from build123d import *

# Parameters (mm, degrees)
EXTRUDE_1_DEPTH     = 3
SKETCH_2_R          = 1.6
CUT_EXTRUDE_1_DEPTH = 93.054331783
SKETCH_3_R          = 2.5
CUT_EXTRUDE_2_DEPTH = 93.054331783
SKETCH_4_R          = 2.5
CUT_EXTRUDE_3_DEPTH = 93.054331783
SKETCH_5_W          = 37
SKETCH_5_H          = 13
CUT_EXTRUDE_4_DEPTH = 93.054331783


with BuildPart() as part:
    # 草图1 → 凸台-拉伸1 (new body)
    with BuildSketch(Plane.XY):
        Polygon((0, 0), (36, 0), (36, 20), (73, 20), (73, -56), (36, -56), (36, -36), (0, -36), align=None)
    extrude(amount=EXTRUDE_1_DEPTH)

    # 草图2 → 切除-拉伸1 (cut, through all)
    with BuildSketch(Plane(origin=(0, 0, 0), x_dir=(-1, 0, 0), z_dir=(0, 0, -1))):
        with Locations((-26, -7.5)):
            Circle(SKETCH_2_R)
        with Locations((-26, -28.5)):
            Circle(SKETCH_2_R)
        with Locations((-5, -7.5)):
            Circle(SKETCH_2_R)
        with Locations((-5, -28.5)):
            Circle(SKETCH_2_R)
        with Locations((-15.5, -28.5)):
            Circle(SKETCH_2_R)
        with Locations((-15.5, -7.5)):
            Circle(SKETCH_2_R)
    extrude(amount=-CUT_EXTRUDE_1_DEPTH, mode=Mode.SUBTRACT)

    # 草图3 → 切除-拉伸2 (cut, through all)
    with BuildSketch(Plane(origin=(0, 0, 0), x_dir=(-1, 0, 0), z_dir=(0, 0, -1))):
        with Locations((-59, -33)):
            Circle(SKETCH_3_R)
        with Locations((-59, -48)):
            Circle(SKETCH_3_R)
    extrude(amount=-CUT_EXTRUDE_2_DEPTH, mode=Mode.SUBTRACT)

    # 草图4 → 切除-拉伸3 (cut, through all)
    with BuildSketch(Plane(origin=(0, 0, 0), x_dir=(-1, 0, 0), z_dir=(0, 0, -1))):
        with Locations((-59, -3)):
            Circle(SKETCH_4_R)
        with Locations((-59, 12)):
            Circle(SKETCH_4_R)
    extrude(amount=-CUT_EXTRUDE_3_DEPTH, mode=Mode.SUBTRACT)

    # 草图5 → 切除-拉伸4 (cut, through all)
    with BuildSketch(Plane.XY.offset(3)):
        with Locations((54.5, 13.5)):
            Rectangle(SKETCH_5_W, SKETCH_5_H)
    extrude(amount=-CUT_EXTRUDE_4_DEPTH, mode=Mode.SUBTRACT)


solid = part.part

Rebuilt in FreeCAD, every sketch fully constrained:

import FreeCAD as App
import Part
import Sketcher

V = App.Vector
Q = App.Units.Quantity

doc = App.newDocument("Part")
params = doc.addObject("Spreadsheet::Sheet", "Params")
for row, (alias, value) in enumerate([
    ("sketch1_width", "36 mm"),
    ("sketch1_width2", "37 mm"),
    ("sketch1_height", "20 mm"),
    ("pad1_length", "3 mm"),
    ("sketch2_diameter", "3.2 mm"),
    ("sketch3_diameter", "5 mm"),
    ("sketch4_diameter", "5 mm"),
    ("sketch5_width", "37 mm"),
    ("sketch5_height", "13 mm"),
], start=1):
    params.set(f"A{row}", alias)
    params.set(f"B{row}", "=" + value)
    params.setAlias(f"B{row}", alias)

body = doc.addObject("PartDesign::Body", "Body")

sketch1 = body.newObject("Sketcher::SketchObject", "Sketch")
sketch1.AttachmentSupport = (doc.getObject("XY_Plane"), [""])
sketch1.MapMode = "FlatFace"
sketch1.addGeometry([
    Part.LineSegment(V(36, 0, 0), V(0, 0, 0)),
    Part.LineSegment(V(0, 0, 0), V(0, -36, 0)),
    Part.LineSegment(V(0, -36, 0), V(36, -36, 0)),
    Part.LineSegment(V(36, -36, 0), V(36, -56, 0)),
    Part.LineSegment(V(36, -56, 0), V(73, -56, 0)),
    Part.LineSegment(V(73, -56, 0), V(73, 20, 0)),
    Part.LineSegment(V(73, 20, 0), V(36, 20, 0)),
    Part.LineSegment(V(36, 20, 0), V(36, 0, 0)),
], False)
sketch1.addConstraint([
    Sketcher.Constraint("Coincident", 0, 2, 1, 1),
    Sketcher.Constraint("Coincident", 1, 2, 2, 1),
    Sketcher.Constraint("Coincident", 2, 2, 3, 1),
    Sketcher.Constraint("Coincident", 3, 2, 4, 1),
    Sketcher.Constraint("Coincident", 4, 2, 5, 1),
    Sketcher.Constraint("Coincident", 5, 2, 6, 1),
    Sketcher.Constraint("Coincident", 6, 2, 7, 1),
    Sketcher.Constraint("Coincident", 7, 2, 0, 1),
    Sketcher.Constraint("Horizontal", 0),
    Sketcher.Constraint("Vertical", 1),
    Sketcher.Constraint("Horizontal", 2),
    Sketcher.Constraint("Vertical", 3),
    Sketcher.Constraint("Horizontal", 4),
    Sketcher.Constraint("Vertical", 5),
    Sketcher.Constraint("Horizontal", 6),
    Sketcher.Constraint("Vertical", 7),
    Sketcher.Constraint("Coincident", 0, 2, -1, 1),
    Sketcher.Constraint("Vertical", 3, 2, 6, 2),
    Sketcher.Constraint("Equal", 2, 1),
    Sketcher.Constraint("Equal", 3, 7),
    Sketcher.Constraint("DistanceX", 0, 2, 0, 1, Q("36 mm")),
    Sketcher.Constraint("DistanceX", 4, 1, 4, 2, Q("37 mm")),
    Sketcher.Constraint("DistanceY", 3, 2, 3, 1, Q("20 mm")),
])
sketch1.setExpression("Constraints[20]", "Params.sketch1_width")
sketch1.setExpression("Constraints[21]", "Params.sketch1_width2")
sketch1.setExpression("Constraints[22]", "Params.sketch1_height")
pad1 = body.newObject("PartDesign::Pad", "Pad")
pad1.Profile = sketch1
pad1.setExpression("Length", "Params.pad1_length")

sketch2 = body.newObject("Sketcher::SketchObject", "Sketch001")
sketch2.AttachmentSupport = (doc.getObject("XY_Plane"), [""])
sketch2.MapMode = "FlatFace"
sketch2.addGeometry([
    Part.Circle(V(26, -7.5, 0), V(0, 0, 1), 1.6),
    Part.Circle(V(26, -28.5, 0), V(0, 0, 1), 1.6),
    Part.Circle(V(5, -7.5, 0), V(0, 0, 1), 1.6),
    Part.Circle(V(5, -28.5, 0), V(0, 0, 1), 1.6),
    Part.Circle(V(15.5, -28.5, 0), V(0, 0, 1), 1.6),
    Part.Circle(V(15.5, -7.5, 0), V(0, 0, 1), 1.6),
], False)
sketch2.addConstraint([
    Sketcher.Constraint("Equal", 0, 1),
    Sketcher.Constraint("Equal", 1, 2),
    Sketcher.Constraint("Equal", 2, 3),
    Sketcher.Constraint("Equal", 3, 4),
    Sketcher.Constraint("Equal", 4, 5),
    Sketcher.Constraint("Horizontal", 0, 3, 2, 3),
    Sketcher.Constraint("Horizontal", 1, 3, 3, 3),
    Sketcher.Constraint("Horizontal", 3, 3, 4, 3),
    Sketcher.Constraint("Horizontal", 2, 3, 5, 3),
    Sketcher.Constraint("Vertical", 0, 3, 1, 3),
    Sketcher.Constraint("Vertical", 2, 3, 3, 3),
    Sketcher.Constraint("Vertical", 4, 3, 5, 3),
    Sketcher.Constraint("Diameter", 0, Q("3.2 mm")),
    Sketcher.Constraint("DistanceX", -1, 1, 0, 3, Q("26 mm")),
    Sketcher.Constraint("DistanceX", -1, 1, 2, 3, Q("5 mm")),
    Sketcher.Constraint("DistanceY", 1, 3, 0, 3, Q("21 mm")),
    Sketcher.Constraint("DistanceY", 0, 3, -1, 1, Q("7.5 mm")),
    Sketcher.Constraint("DistanceX", -1, 1, 4, 3, Q("15.5 mm")),
])
sketch2.setExpression("Constraints[12]", "Params.sketch2_diameter")
pocket1 = body.newObject("PartDesign::Pocket", "Pocket")
pocket1.Profile = sketch2
pocket1.Type = "ThroughAll"
pocket1.Reversed = True

sketch3 = body.newObject("Sketcher::SketchObject", "Sketch002")
sketch3.AttachmentSupport = (doc.getObject("XY_Plane"), [""])
sketch3.MapMode = "FlatFace"
sketch3.addGeometry([
    Part.Circle(V(59, -33, 0), V(0, 0, 1), 2.5),
    Part.Circle(V(59, -48, 0), V(0, 0, 1), 2.5),
], False)
sketch3.addConstraint([
    Sketcher.Constraint("Equal", 0, 1),
    Sketcher.Constraint("Vertical", 0, 3, 1, 3),
    Sketcher.Constraint("Diameter", 0, Q("5 mm")),
    Sketcher.Constraint("DistanceX", -1, 1, 0, 3, Q("59 mm")),
    Sketcher.Constraint("DistanceY", 0, 3, -1, 1, Q("33 mm")),
    Sketcher.Constraint("DistanceY", 1, 3, -1, 1, Q("48 mm")),
])
sketch3.setExpression("Constraints[2]", "Params.sketch3_diameter")
pocket2 = body.newObject("PartDesign::Pocket", "Pocket001")
pocket2.Profile = sketch3
pocket2.Type = "ThroughAll"
pocket2.Reversed = True

sketch4 = body.newObject("Sketcher::SketchObject", "Sketch003")
sketch4.AttachmentSupport = (doc.getObject("XY_Plane"), [""])
sketch4.MapMode = "FlatFace"
sketch4.addGeometry([
    Part.Circle(V(59, -3, 0), V(0, 0, 1), 2.5),
    Part.Circle(V(59, 12, 0), V(0, 0, 1), 2.5),
], False)
sketch4.addConstraint([
    Sketcher.Constraint("Equal", 0, 1),
    Sketcher.Constraint("Vertical", 0, 3, 1, 3),
    Sketcher.Constraint("Diameter", 0, Q("5 mm")),
    Sketcher.Constraint("DistanceX", -1, 1, 0, 3, Q("59 mm")),
    Sketcher.Constraint("DistanceY", 0, 3, -1, 1, Q("3 mm")),
    Sketcher.Constraint("DistanceY", -1, 1, 1, 3, Q("12 mm")),
])
sketch4.setExpression("Constraints[2]", "Params.sketch4_diameter")
pocket3 = body.newObject("PartDesign::Pocket", "Pocket002")
pocket3.Profile = sketch4
pocket3.Type = "ThroughAll"
pocket3.Reversed = True

sketch5 = body.newObject("Sketcher::SketchObject", "Sketch004")
sketch5.AttachmentSupport = (doc.getObject("XY_Plane"), [""])
sketch5.MapMode = "FlatFace"
sketch5.AttachmentOffset = App.Placement(V(0, 0, 3), App.Rotation())
sketch5.addGeometry([
    Part.LineSegment(V(36, 20, 0), V(36, 7, 0)),
    Part.LineSegment(V(36, 7, 0), V(73, 7, 0)),
    Part.LineSegment(V(73, 7, 0), V(73, 20, 0)),
    Part.LineSegment(V(73, 20, 0), V(36, 20, 0)),
], False)
sketch5.addConstraint([
    Sketcher.Constraint("Coincident", 0, 2, 1, 1),
    Sketcher.Constraint("Coincident", 1, 2, 2, 1),
    Sketcher.Constraint("Coincident", 2, 2, 3, 1),
    Sketcher.Constraint("Coincident", 3, 2, 0, 1),
    Sketcher.Constraint("Vertical", 0),
    Sketcher.Constraint("Horizontal", 1),
    Sketcher.Constraint("Vertical", 2),
    Sketcher.Constraint("Horizontal", 3),
    Sketcher.Constraint("DistanceX", 1, 1, 1, 2, Q("37 mm")),
    Sketcher.Constraint("DistanceY", 0, 2, 0, 1, Q("13 mm")),
    Sketcher.Constraint("DistanceX", -1, 1, 0, 2, Q("36 mm")),
    Sketcher.Constraint("DistanceY", -1, 1, 0, 2, Q("7 mm")),
])
sketch5.setExpression("Constraints[8]", "Params.sketch5_width")
sketch5.setExpression("Constraints[9]", "Params.sketch5_height")
pocket4 = body.newObject("PartDesign::Pocket", "Pocket003")
pocket4.Profile = sketch5
pocket4.Type = "ThroughAll"

doc.recompute()
